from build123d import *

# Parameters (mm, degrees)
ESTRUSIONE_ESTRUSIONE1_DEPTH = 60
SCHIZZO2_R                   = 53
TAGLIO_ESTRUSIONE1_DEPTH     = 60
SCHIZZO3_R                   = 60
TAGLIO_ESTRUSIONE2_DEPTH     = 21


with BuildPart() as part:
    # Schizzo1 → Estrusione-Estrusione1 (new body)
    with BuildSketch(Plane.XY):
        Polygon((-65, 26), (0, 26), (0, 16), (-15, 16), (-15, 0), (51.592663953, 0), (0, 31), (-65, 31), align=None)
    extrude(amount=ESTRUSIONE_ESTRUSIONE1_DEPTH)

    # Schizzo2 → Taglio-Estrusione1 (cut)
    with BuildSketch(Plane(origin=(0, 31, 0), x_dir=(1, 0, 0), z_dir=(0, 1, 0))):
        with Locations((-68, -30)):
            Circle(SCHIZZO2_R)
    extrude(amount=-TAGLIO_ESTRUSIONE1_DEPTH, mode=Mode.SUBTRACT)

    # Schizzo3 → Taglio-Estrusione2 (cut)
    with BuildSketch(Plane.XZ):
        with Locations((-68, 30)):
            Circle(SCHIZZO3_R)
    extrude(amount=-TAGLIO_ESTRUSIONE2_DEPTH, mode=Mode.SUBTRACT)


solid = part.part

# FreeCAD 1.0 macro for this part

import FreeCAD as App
import Part
import Sketcher

V = App.Vector
Q = App.Units.Quantity


def add_polygon(sketch, points):
    """Adds a closed chain of lines whose ends are joined by coincident constraints."""
    first, n = sketch.GeometryCount, len(points)
    for a, b in zip(points, points[1:] + points[:1]):
        sketch.addGeometry(Part.LineSegment(App.Vector(*a, 0), App.Vector(*b, 0)), False)
    for i in range(n):
        sketch.addConstraint(Sketcher.Constraint("Coincident", first + i, 2, first + (i + 1) % n, 1))

doc = App.newDocument("Part")
body = doc.addObject("PartDesign::Body", "Body")

# Sketch on XY plane
sketch1 = doc.addObject("Sketcher::SketchObject", "Sketch")
body.addObject(sketch1)
sketch1.AttachmentSupport = (doc.XY_Plane, [""])
sketch1.MapMode = "FlatFace"
add_polygon(sketch1, [(-65, 26), (0, 26), (0, 16), (-15, 16), (-15, 0), (51.592664, 0), (0, 31), (-65, 31)])  # lines 0-7
sketch1.addConstraint([
    Sketcher.Constraint("Horizontal", 0),
    Sketcher.Constraint("Vertical", 1),
    Sketcher.Constraint("Horizontal", 2),
    Sketcher.Constraint("Vertical", 3),
    Sketcher.Constraint("Horizontal", 4),
    Sketcher.Constraint("Horizontal", 6),
    Sketcher.Constraint("Vertical", 7),
    Sketcher.Constraint("PointOnObject", 0, 2, -2),
    Sketcher.Constraint("PointOnObject", 3, 2, -1),
    Sketcher.Constraint("PointOnObject", 5, 2, -2),
    Sketcher.Constraint("DistanceX", 0, 1, 0, 2, Q("65 mm")),
    Sketcher.Constraint("DistanceX", 2, 2, 2, 1, Q("15 mm")),
    Sketcher.Constraint("DistanceY", 1, 2, 1, 1, Q("10 mm")),
    Sketcher.Constraint("DistanceY", 3, 2, 3, 1, Q("16 mm")),
    Sketcher.Constraint("DistanceY", 7, 2, 7, 1, Q("5 mm")),
    Sketcher.Constraint("Angle", 5, Q("149 deg")),
])
pad1 = doc.addObject("PartDesign::Pad", "Pad")
body.addObject(pad1)
pad1.Profile = sketch1
pad1.Length = 60

# Sketch on XZ plane
sketch2 = doc.addObject("Sketcher::SketchObject", "Sketch001")
body.addObject(sketch2)
sketch2.AttachmentSupport = (doc.XZ_Plane, [""])
sketch2.MapMode = "FlatFace"
sketch2.AttachmentOffset = App.Placement(V(0, 0, -31), App.Rotation())
sketch2.addGeometry(Part.Circle(V(-68, 30, 0), V(0, 0, 1), 53), False)
sketch2.addConstraint([
    Sketcher.Constraint("Diameter", 0, Q("106 mm")),
    Sketcher.Constraint("DistanceX", 0, 3, -1, 1, Q("68 mm")),
    Sketcher.Constraint("DistanceY", -1, 1, 0, 3, Q("30 mm")),
])
pocket1 = doc.addObject("PartDesign::Pocket", "Pocket")
body.addObject(pocket1)
pocket1.Profile = sketch2
pocket1.Length = 60
pocket1.Reversed = True

# Sketch on XZ plane
sketch3 = doc.addObject("Sketcher::SketchObject", "Sketch002")
body.addObject(sketch3)
sketch3.AttachmentSupport = (doc.XZ_Plane, [""])
sketch3.MapMode = "FlatFace"
sketch3.addGeometry(Part.Circle(V(-68, 30, 0), V(0, 0, 1), 60), False)
sketch3.addConstraint([
    Sketcher.Constraint("Diameter", 0, Q("120 mm")),
    Sketcher.Constraint("DistanceX", 0, 3, -1, 1, Q("68 mm")),
    Sketcher.Constraint("DistanceY", -1, 1, 0, 3, Q("30 mm")),
])
pocket2 = doc.addObject("PartDesign::Pocket", "Pocket001")
body.addObject(pocket2)
pocket2.Profile = sketch3
pocket2.Length = 21

doc.recompute()
